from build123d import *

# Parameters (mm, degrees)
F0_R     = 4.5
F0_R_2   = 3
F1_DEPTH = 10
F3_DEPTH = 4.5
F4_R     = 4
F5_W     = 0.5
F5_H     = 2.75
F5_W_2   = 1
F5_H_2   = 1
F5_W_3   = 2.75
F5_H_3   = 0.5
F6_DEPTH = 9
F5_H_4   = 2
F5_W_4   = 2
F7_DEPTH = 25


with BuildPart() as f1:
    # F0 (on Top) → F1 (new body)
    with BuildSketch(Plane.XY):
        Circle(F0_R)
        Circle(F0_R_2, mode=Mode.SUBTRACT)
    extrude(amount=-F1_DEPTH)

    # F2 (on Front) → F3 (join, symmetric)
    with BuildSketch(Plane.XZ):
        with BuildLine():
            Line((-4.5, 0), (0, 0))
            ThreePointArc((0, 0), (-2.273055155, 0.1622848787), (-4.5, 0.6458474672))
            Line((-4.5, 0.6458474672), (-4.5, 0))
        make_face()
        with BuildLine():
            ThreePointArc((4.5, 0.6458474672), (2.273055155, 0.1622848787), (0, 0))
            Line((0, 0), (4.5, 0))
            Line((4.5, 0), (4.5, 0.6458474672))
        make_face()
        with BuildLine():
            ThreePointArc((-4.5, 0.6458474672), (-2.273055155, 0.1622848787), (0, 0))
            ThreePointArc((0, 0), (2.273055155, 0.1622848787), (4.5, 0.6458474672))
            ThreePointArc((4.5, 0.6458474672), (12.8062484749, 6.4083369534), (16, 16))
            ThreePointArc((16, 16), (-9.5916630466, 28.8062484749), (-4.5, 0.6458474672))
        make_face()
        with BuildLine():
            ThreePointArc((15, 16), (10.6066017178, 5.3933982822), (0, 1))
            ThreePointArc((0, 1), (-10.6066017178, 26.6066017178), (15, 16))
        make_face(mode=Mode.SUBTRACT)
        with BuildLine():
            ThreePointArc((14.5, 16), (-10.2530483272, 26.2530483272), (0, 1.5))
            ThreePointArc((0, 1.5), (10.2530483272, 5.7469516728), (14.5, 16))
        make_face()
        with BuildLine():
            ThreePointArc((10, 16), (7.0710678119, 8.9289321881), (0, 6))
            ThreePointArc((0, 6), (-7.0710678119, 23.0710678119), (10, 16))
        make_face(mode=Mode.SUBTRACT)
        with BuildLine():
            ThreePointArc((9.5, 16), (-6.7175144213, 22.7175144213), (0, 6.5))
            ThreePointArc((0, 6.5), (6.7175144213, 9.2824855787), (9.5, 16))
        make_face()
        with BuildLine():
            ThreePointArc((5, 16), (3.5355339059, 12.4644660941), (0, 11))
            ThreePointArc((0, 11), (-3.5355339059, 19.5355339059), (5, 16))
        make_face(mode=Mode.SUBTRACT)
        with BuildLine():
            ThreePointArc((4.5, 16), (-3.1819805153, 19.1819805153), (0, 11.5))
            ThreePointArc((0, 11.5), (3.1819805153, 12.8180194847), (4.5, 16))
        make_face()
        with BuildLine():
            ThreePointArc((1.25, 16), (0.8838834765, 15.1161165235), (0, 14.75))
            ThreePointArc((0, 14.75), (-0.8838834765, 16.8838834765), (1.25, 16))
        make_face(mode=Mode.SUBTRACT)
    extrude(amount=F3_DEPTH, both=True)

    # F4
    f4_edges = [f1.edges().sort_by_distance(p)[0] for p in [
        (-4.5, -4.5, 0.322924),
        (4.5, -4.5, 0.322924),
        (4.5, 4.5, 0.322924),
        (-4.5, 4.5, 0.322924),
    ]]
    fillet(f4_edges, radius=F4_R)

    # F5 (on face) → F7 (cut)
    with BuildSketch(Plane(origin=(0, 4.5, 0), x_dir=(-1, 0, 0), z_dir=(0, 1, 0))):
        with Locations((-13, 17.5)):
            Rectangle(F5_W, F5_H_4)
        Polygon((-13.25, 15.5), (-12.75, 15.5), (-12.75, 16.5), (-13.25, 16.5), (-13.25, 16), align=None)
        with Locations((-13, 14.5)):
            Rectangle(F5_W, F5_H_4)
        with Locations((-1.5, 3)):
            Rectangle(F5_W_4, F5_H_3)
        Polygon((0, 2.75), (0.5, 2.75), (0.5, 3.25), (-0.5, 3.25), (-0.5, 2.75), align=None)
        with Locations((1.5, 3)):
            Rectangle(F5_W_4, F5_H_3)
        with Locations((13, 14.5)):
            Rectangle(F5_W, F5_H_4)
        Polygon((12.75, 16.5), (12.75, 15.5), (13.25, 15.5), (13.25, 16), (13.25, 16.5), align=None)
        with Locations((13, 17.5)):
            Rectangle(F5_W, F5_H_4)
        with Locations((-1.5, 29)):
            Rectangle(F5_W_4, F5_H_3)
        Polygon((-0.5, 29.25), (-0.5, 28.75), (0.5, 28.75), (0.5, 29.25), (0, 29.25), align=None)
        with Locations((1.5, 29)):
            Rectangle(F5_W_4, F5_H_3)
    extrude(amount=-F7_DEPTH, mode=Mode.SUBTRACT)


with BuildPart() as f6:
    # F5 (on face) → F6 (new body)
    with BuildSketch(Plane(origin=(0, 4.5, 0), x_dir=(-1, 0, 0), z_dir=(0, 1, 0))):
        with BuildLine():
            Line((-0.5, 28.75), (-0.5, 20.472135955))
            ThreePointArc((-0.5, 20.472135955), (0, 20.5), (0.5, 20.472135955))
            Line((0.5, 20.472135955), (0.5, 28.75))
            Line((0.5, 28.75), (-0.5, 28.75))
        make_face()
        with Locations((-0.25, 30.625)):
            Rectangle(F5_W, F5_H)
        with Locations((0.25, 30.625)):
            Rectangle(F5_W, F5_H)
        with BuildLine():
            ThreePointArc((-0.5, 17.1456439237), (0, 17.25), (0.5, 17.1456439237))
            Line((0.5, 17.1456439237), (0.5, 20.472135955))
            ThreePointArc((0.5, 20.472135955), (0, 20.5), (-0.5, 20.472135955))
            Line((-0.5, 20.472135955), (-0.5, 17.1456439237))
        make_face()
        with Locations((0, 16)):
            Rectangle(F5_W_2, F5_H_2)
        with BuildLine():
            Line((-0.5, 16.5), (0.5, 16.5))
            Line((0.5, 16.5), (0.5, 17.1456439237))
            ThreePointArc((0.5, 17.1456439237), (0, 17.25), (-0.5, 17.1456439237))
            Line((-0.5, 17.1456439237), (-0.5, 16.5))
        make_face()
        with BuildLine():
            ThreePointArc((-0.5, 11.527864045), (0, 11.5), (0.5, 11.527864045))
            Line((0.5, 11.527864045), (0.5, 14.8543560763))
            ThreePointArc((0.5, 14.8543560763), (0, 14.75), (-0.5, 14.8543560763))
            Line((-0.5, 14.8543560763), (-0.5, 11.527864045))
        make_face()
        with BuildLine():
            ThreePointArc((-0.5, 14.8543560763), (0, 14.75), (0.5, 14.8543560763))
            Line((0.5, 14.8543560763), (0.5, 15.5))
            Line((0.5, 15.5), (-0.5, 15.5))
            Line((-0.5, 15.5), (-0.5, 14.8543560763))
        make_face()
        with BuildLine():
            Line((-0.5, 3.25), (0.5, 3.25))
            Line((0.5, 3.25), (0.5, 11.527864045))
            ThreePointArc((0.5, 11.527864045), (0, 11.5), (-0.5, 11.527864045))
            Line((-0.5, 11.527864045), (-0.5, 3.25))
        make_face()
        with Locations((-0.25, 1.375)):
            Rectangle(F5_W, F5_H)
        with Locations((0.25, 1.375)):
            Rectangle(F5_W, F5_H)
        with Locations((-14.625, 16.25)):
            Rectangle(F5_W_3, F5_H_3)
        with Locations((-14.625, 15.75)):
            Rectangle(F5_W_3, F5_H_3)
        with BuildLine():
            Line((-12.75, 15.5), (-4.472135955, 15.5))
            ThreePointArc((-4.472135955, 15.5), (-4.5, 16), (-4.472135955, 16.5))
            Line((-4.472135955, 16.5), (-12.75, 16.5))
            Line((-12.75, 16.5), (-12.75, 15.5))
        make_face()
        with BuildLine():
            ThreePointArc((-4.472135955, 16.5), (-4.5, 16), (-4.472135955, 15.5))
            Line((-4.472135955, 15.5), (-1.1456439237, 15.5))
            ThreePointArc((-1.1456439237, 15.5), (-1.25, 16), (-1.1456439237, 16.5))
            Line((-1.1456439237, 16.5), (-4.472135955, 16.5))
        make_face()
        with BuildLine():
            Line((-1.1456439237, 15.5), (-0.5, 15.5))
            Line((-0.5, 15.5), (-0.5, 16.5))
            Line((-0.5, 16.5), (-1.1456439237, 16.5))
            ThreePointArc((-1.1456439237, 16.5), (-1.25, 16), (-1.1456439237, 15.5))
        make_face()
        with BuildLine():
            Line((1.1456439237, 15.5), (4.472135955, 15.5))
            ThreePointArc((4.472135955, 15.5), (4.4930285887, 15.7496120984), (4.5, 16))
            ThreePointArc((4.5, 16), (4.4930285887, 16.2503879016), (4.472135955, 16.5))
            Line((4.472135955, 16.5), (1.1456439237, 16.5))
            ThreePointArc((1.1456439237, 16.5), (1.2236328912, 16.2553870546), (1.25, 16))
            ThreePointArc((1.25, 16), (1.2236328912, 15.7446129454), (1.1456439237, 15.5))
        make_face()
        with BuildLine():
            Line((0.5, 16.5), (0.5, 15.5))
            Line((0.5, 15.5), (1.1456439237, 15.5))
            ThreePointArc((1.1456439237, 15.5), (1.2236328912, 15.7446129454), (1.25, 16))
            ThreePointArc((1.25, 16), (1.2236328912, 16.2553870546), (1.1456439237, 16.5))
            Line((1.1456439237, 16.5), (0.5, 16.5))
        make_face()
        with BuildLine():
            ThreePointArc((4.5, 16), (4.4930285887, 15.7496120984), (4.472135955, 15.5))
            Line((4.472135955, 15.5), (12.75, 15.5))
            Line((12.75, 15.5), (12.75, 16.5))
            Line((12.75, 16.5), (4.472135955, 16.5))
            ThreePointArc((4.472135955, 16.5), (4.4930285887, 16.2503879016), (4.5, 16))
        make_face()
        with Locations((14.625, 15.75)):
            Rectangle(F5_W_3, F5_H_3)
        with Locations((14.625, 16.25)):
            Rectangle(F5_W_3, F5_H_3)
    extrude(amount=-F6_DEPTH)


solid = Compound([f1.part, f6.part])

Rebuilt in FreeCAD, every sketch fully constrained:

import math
import FreeCAD as App
import Part
import Sketcher
from FreeCAD import Vector
Q = App.Units.Quantity


def edges_at(feature, points):
    """Names of the edges that pass closest to the given points."""
    edges = feature.Shape.Edges
    near = lambda p: min(range(len(edges)), key=lambda i: edges[i].distToShape(Part.Vertex(*p))[0])
    return sorted({f"Edge{near(p) + 1}" for p in points})


def add_polygon(sketch, points):
    """Adds a closed chain of lines whose ends are joined by coincident constraints."""
    first, n = sketch.GeometryCount, len(points)
    for a, b in zip(points, points[1:] + points[:1]):
        sketch.addGeometry(Part.LineSegment(App.Vector(*a, 0), App.Vector(*b, 0)), False)
    for i in range(n):
        sketch.addConstraint(Sketcher.Constraint("Coincident", first + i, 2, first + (i + 1) % n, 1))

doc = App.newDocument("Part")
body = doc.addObject("PartDesign::Body", "Body")
body.AllowCompound = True

sketch1 = body.newObject("Sketcher::SketchObject", "Sketch")
sketch1.AttachmentSupport = (doc.getObject("XY_Plane"), [""])
sketch1.MapMode = "FlatFace"
sketch1.addGeometry([
    Part.Circle(Vector(0, 0, 0), Vector(0, 0, 1), 4.5),
    Part.Circle(Vector(0, 0, 0), Vector(0, 0, 1), 3),
], False)
sketch1.addConstraint([
    Sketcher.Constraint("Coincident", 0, 3, -1, 1),
    Sketcher.Constraint("Coincident", 1, 3, -1, 1),
    Sketcher.Constraint("Diameter", 0, Q("9 mm")),
    Sketcher.Constraint("Diameter", 1, Q("6 mm")),
])
pad1 = body.newObject("PartDesign::Pad", "Pad")
pad1.Profile = sketch1
pad1.Length = 10
pad1.Reversed = True

sketch2 = body.newObject("Sketcher::SketchObject", "Sketch001")
sketch2.AttachmentSupport = (doc.getObject("XZ_Plane"), [""])
sketch2.MapMode = "FlatFace"
sketch2.addGeometry([
    Part.LineSegment(Vector(-4.5, 0, 0), Vector(4.5, 0, 0)),
    Part.LineSegment(Vector(4.5, 0, 0), Vector(4.5, 0.6, 0)),
    Part.ArcOfCircle(Part.Circle(Vector(0, 16, 0), Vector(0, 0, 1), 16), math.radians(-74), math.radians(0)),
    Part.ArcOfCircle(Part.Circle(Vector(0, 16, 0), Vector(0, 0, 1), 16), math.radians(0), math.radians(254)),
    Part.LineSegment(Vector(-4.5, 0.6, 0), Vector(-4.5, 0, 0)),
    Part.Circle(Vector(0, 16, 0), Vector(0, 0, 1), 15),
    Part.ArcOfCircle(Part.Circle(Vector(0, 16, 0), Vector(0, 0, 1), 14.5), math.radians(0), math.radians(270)),
    Part.ArcOfCircle(Part.Circle(Vector(0, 16, 0), Vector(0, 0, 1), 14.5), math.radians(-90), math.radians(0)),
    Part.ArcOfCircle(Part.Circle(Vector(0, 16, 0), Vector(0, 0, 1), 10), math.radians(0), math.radians(270)),
    Part.ArcOfCircle(Part.Circle(Vector(0, 16, 0), Vector(0, 0, 1), 10), math.radians(-90), math.radians(0)),
    Part.ArcOfCircle(Part.Circle(Vector(0, 16, 0), Vector(0, 0, 1), 9.5), math.radians(0), math.radians(270)),
    Part.ArcOfCircle(Part.Circle(Vector(0, 16, 0), Vector(0, 0, 1), 9.5), math.radians(-90), math.radians(0)),
    Part.ArcOfCircle(Part.Circle(Vector(0, 16, 0), Vector(0, 0, 1), 5), math.radians(0), math.radians(270)),
    Part.ArcOfCircle(Part.Circle(Vector(0, 16, 0), Vector(0, 0, 1), 5), math.radians(-90), math.radians(0)),
    Part.ArcOfCircle(Part.Circle(Vector(0, 16, 0), Vector(0, 0, 1), 4.5), math.radians(0), math.radians(270)),
    Part.ArcOfCircle(Part.Circle(Vector(0, 16, 0), Vector(0, 0, 1), 4.5), math.radians(-90), math.radians(0)),
    Part.ArcOfCircle(Part.Circle(Vector(0, 16, 0), Vector(0, 0, 1), 1.2), math.radians(0), math.radians(270)),
    Part.ArcOfCircle(Part.Circle(Vector(0, 16, 0), Vector(0, 0, 1), 1.2), math.radians(-90), math.radians(0)),
], False)
sketch2.addConstraint([
    Sketcher.Constraint("Coincident", 0, 2, 1, 1),
    Sketcher.Constraint("Coincident", 1, 2, 2, 1),
    Sketcher.Constraint("Tangent", 2, 2, 3, 1),
    Sketcher.Constraint("Coincident", 3, 2, 4, 1),
    Sketcher.Constraint("Coincident", 4, 2, 0, 1),
    Sketcher.Constraint("Tangent", 6, 1, 7, 2),
    Sketcher.Constraint("Coincident", 7, 1, 6, 2),
    Sketcher.Constraint("Tangent", 8, 1, 9, 2),
    Sketcher.Constraint("Coincident", 9, 1, 8, 2),
    Sketcher.Constraint("Tangent", 10, 1, 11, 2),
    Sketcher.Constraint("Coincident", 11, 1, 10, 2),
    Sketcher.Constraint("Tangent", 12, 1, 13, 2),
    Sketcher.Constraint("Coincident", 13, 1, 12, 2),
    Sketcher.Constraint("Tangent", 14, 1, 15, 2),
    Sketcher.Constraint("Coincident", 15, 1, 14, 2),
    Sketcher.Constraint("Tangent", 16, 1, 17, 2),
    Sketcher.Constraint("Coincident", 17, 1, 16, 2),
    Sketcher.Constraint("Horizontal", 0),
    Sketcher.Constraint("Vertical", 1),
    Sketcher.Constraint("Vertical", 4),
    Sketcher.Constraint("Coincident", 5, 3, 2, 3),
    Sketcher.Constraint("Coincident", 6, 3, 2, 3),
    Sketcher.Constraint("Coincident", 8, 3, 2, 3),
    Sketcher.Constraint("Coincident", 10, 3, 2, 3),
    Sketcher.Constraint("Coincident", 12, 3, 2, 3),
    Sketcher.Constraint("Coincident", 14, 3, 2, 3),
    Sketcher.Constraint("Coincident", 16, 3, 2, 3),
    Sketcher.Constraint("Equal", 2, 3),
    Sketcher.Constraint("Symmetric", 0, 2, 4, 2, -1, 1),
    Sketcher.Constraint("PointOnObject", 2, 3, -2),
    Sketcher.Constraint("PointOnObject", 7, 1, -2),
    Sketcher.Constraint("PointOnObject", 9, 1, -2),
    Sketcher.Constraint("PointOnObject", 11, 1, -2),
    Sketcher.Constraint("PointOnObject", 13, 1, -2),
    Sketcher.Constraint("PointOnObject", 15, 1, -2),
    Sketcher.Constraint("PointOnObject", 17, 1, -2),
    Sketcher.Constraint("Horizontal", 17, 3, 2, 2),
    Sketcher.Constraint("Horizontal", 2, 2, 6, 1),
    Sketcher.Constraint("Horizontal", 6, 1, 8, 1),
    Sketcher.Constraint("Horizontal", 8, 1, 10, 1),
    Sketcher.Constraint("Horizontal", 10, 1, 12, 1),
    Sketcher.Constraint("Horizontal", 12, 1, 14, 1),
    Sketcher.Constraint("Horizontal", 14, 1, 16, 1),
    Sketcher.Constraint("Vertical", 1, 2, 14, 1),
    Sketcher.Constraint("Diameter", 5, Q("30 mm")),
    Sketcher.Constraint("Radius", 2, Q("16 mm")),
    Sketcher.Constraint("Radius", 8, Q("10 mm")),
    Sketcher.Constraint("Radius", 12, Q("5 mm")),
    Sketcher.Constraint("Radius", 6, Q("14.5 mm")),
    Sketcher.Constraint("Radius", 10, Q("9.5 mm")),
    Sketcher.Constraint("Radius", 14, Q("4.5 mm")),
    Sketcher.Constraint("Radius", 16, Q("1.25 mm")),
    Sketcher.Constraint("DistanceY", -1, 1, 2, 3, Q("16 mm")),
])
pad2 = body.newObject("PartDesign::Pad", "Pad001")
pad2.Profile = sketch2
pad2.Length = 9
pad2.Midplane = True
doc.recompute()

fillet = body.newObject("PartDesign::Fillet", "Fillet")
fillet.Base = (pad2, edges_at(pad2, [
    (-4.5, -4.5, 0.323),
    (4.5, -4.5, 0.323),
    (4.5, 4.5, 0.323),
    (-4.5, 4.5, 0.323),
]))
fillet.Radius = 4

sketch3 = body.newObject("Sketcher::SketchObject", "Sketch002")
sketch3.AttachmentSupport = (doc.getObject("XZ_Plane"), [""])
sketch3.MapMode = "FlatFace"
sketch3.AttachmentOffset = App.Placement(Vector(0, 0, -4.5), App.Rotation())
add_polygon(sketch3, [(13.2, 18.5), (13.2, 13.5), (12.8, 13.5), (12.8, 18.5)])
add_polygon(sketch3, [(2.5, 3.2), (2.5, 2.8), (-2.5, 2.8), (-2.5, 3.2)])
add_polygon(sketch3, [(-12.8, 13.5), (-13.2, 13.5), (-13.2, 18.5), (-12.8, 18.5)])
add_polygon(sketch3, [(2.5, 29.2), (2.5, 28.8), (-2.5, 28.8), (-2.5, 29.2)])
sketch3.addConstraint([
    Sketcher.Constraint("Vertical", 0),
    Sketcher.Constraint("Horizontal", 1),
    Sketcher.Constraint("Vertical", 2),
    Sketcher.Constraint("Horizontal", 3),
    Sketcher.Constraint("Vertical", 4),
    Sketcher.Constraint("Horizontal", 5),
    Sketcher.Constraint("Vertical", 6),
    Sketcher.Constraint("Horizontal", 7),
    Sketcher.Constraint("Horizontal", 8),
    Sketcher.Constraint("Vertical", 9),
    Sketcher.Constraint("Horizontal", 10),
    Sketcher.Constraint("Vertical", 11),
    Sketcher.Constraint("Vertical", 12),
    Sketcher.Constraint("Horizontal", 13),
    Sketcher.Constraint("Vertical", 14),
    Sketcher.Constraint("Horizontal", 15),
    Sketcher.Constraint("Symmetric", 0, 2, 8, 2, -2),
    Sketcher.Constraint("Symmetric", 2, 2, 10, 2, -2),
    Sketcher.Constraint("Vertical", 7, 2, 12, 2),
    Sketcher.Constraint("Vertical", 6, 2, 13, 2),
    Sketcher.Constraint("Equal", 15, 0),
    Sketcher.Constraint("Equal", 10, 4),
    Sketcher.Constraint("Equal", 6, 12),
    Sketcher.Constraint("DistanceX", 5, 2, 5, 1, Q("5 mm")),
    Sketcher.Constraint("DistanceX", 1, 2, 1, 1, Q("0.5 mm")),
    Sketcher.Constraint("DistanceX", 8, 2, 1, 2, Q("26 mm")),
    Sketcher.Constraint("DistanceY", -1, 1, 0, 2, Q("13.5 mm")),
    Sketcher.Constraint("DistanceX", -1, 1, 4, 2, Q("2.5 mm")),
    Sketcher.Constraint("DistanceY", -1, 1, 4, 2, Q("2.75 mm")),
    Sketcher.Constraint("DistanceY", -1, 1, 12, 2, Q("28.75 mm")),
])
pocket1 = body.newObject("PartDesign::Pocket", "Pocket")
pocket1.Profile = sketch3
pocket1.Length = 25
pocket1.Reversed = True
body2 = doc.addObject("PartDesign::Body", "Body001")
body2.AllowCompound = True

sketch4 = body2.newObject("Sketcher::SketchObject", "Sketch003")
sketch4.AttachmentSupport = (doc.getObject("XZ_Plane001"), [""])
sketch4.MapMode = "FlatFace"
sketch4.AttachmentOffset = App.Placement(Vector(0, 0, -4.5), App.Rotation())
add_polygon(sketch4, [(0.5, 28.8), (0.5, 16.5), (12.8, 16.5), (12.8, 15.5), (0.5, 15.5), (0.5, 3.2), (-0.5, 3.2), (-0.5, 15.5), (-12.8, 15.5), (-12.8, 16.5), (-0.5, 16.5), (-0.5, 28.8)])
add_polygon(sketch4, [(0.5, 32), (0.5, 29.2), (-0.5, 29.2), (-0.5, 32)])
add_polygon(sketch4, [(0.5, 2.8), (0.5, 0), (-0.5, 0), (-0.5, 2.8)])
add_polygon(sketch4, [(16, 16.5), (16, 15.5), (13.2, 15.5), (13.2, 16.5)])
add_polygon(sketch4, [(-13.2, 15.5), (-16, 15.5), (-16, 16.5), (-13.2, 16.5)])
sketch4.addConstraint([
    Sketcher.Constraint("Vertical", 0),
    Sketcher.Constraint("Horizontal", 1),
    Sketcher.Constraint("Vertical", 2),
    Sketcher.Constraint("Horizontal", 3),
    Sketcher.Constraint("Vertical", 4),
    Sketcher.Constraint("Horizontal", 5),
    Sketcher.Constraint("Vertical", 6),
    Sketcher.Constraint("Horizontal", 7),
    Sketcher.Constraint("Vertical", 8),
    Sketcher.Constraint("Horizontal", 9),
    Sketcher.Constraint("Vertical", 10),
    Sketcher.Constraint("Horizontal", 11),
    Sketcher.Constraint("Vertical", 12),
    Sketcher.Constraint("Horizontal", 13),
    Sketcher.Constraint("Vertical", 14),
    Sketcher.Constraint("Horizontal", 15),
    Sketcher.Constraint("Vertical", 16),
    Sketcher.Constraint("Horizontal", 17),
    Sketcher.Constraint("Vertical", 18),
    Sketcher.Constraint("Horizontal", 19),
    Sketcher.Constraint("Vertical", 20),
    Sketcher.Constraint("Horizontal", 21),
    Sketcher.Constraint("Vertical", 22),
    Sketcher.Constraint("Horizontal", 23),
    Sketcher.Constraint("Horizontal", 24),
    Sketcher.Constraint("Vertical", 25),
    Sketcher.Constraint("Horizontal", 26),
    Sketcher.Constraint("Vertical", 27),
    Sketcher.Constraint("Symmetric", 16, 2, 17, 2, -1, 1),
    Sketcher.Constraint("Symmetric", 3, 2, 6, 2, -2),
    Sketcher.Constraint("Symmetric", 1, 2, 8, 2, -2),
    Sketcher.Constraint("Symmetric", 20, 2, 24, 2, -2),
    Sketcher.Constraint("Symmetric", 22, 2, 26, 2, -2),
    Sketcher.Constraint("Horizontal", 7, 2, 20, 2),
    Sketcher.Constraint("Horizontal", 9, 2, 22, 2),
    Sketcher.Constraint("Vertical", 0, 2, 3, 2),
    Sketcher.Constraint("Vertical", 6, 2, 9, 2),
    Sketcher.Constraint("Vertical", 11, 2, 12, 2),
    Sketcher.Constraint("Vertical", 10, 2, 13, 2),
    Sketcher.Constraint("Vertical", 15, 2, 16, 2),
    Sketcher.Constraint("Equal", 9, 0),
    Sketcher.Constraint("Equal", 19, 2),
    Sketcher.Constraint("Equal", 0, 4),
    Sketcher.Constraint("Equal", 26, 12),
    Sketcher.Constraint("Equal", 14, 16),
    Sketcher.Constraint("DistanceX", 5, 2, 5, 1, Q("1 mm")),
    Sketcher.Constraint("DistanceY", -1, 1, 14, 2, Q("32 mm")),
    Sketcher.Constraint("DistanceX", -1, 1, 20, 2, Q("16 mm")),
    Sketcher.Constraint("DistanceX", 1, 1, 1, 2, Q("12.25 mm")),
    Sketcher.Constraint("DistanceX", 21, 2, 21, 1, Q("2.75 mm")),
    Sketcher.Constraint("DistanceY", -1, 1, 0, 2, Q("16.5 mm")),
])
pad3 = body2.newObject("PartDesign::Pad", "Pad002")
pad3.Profile = sketch4
pad3.Length = 9

doc.recompute()
